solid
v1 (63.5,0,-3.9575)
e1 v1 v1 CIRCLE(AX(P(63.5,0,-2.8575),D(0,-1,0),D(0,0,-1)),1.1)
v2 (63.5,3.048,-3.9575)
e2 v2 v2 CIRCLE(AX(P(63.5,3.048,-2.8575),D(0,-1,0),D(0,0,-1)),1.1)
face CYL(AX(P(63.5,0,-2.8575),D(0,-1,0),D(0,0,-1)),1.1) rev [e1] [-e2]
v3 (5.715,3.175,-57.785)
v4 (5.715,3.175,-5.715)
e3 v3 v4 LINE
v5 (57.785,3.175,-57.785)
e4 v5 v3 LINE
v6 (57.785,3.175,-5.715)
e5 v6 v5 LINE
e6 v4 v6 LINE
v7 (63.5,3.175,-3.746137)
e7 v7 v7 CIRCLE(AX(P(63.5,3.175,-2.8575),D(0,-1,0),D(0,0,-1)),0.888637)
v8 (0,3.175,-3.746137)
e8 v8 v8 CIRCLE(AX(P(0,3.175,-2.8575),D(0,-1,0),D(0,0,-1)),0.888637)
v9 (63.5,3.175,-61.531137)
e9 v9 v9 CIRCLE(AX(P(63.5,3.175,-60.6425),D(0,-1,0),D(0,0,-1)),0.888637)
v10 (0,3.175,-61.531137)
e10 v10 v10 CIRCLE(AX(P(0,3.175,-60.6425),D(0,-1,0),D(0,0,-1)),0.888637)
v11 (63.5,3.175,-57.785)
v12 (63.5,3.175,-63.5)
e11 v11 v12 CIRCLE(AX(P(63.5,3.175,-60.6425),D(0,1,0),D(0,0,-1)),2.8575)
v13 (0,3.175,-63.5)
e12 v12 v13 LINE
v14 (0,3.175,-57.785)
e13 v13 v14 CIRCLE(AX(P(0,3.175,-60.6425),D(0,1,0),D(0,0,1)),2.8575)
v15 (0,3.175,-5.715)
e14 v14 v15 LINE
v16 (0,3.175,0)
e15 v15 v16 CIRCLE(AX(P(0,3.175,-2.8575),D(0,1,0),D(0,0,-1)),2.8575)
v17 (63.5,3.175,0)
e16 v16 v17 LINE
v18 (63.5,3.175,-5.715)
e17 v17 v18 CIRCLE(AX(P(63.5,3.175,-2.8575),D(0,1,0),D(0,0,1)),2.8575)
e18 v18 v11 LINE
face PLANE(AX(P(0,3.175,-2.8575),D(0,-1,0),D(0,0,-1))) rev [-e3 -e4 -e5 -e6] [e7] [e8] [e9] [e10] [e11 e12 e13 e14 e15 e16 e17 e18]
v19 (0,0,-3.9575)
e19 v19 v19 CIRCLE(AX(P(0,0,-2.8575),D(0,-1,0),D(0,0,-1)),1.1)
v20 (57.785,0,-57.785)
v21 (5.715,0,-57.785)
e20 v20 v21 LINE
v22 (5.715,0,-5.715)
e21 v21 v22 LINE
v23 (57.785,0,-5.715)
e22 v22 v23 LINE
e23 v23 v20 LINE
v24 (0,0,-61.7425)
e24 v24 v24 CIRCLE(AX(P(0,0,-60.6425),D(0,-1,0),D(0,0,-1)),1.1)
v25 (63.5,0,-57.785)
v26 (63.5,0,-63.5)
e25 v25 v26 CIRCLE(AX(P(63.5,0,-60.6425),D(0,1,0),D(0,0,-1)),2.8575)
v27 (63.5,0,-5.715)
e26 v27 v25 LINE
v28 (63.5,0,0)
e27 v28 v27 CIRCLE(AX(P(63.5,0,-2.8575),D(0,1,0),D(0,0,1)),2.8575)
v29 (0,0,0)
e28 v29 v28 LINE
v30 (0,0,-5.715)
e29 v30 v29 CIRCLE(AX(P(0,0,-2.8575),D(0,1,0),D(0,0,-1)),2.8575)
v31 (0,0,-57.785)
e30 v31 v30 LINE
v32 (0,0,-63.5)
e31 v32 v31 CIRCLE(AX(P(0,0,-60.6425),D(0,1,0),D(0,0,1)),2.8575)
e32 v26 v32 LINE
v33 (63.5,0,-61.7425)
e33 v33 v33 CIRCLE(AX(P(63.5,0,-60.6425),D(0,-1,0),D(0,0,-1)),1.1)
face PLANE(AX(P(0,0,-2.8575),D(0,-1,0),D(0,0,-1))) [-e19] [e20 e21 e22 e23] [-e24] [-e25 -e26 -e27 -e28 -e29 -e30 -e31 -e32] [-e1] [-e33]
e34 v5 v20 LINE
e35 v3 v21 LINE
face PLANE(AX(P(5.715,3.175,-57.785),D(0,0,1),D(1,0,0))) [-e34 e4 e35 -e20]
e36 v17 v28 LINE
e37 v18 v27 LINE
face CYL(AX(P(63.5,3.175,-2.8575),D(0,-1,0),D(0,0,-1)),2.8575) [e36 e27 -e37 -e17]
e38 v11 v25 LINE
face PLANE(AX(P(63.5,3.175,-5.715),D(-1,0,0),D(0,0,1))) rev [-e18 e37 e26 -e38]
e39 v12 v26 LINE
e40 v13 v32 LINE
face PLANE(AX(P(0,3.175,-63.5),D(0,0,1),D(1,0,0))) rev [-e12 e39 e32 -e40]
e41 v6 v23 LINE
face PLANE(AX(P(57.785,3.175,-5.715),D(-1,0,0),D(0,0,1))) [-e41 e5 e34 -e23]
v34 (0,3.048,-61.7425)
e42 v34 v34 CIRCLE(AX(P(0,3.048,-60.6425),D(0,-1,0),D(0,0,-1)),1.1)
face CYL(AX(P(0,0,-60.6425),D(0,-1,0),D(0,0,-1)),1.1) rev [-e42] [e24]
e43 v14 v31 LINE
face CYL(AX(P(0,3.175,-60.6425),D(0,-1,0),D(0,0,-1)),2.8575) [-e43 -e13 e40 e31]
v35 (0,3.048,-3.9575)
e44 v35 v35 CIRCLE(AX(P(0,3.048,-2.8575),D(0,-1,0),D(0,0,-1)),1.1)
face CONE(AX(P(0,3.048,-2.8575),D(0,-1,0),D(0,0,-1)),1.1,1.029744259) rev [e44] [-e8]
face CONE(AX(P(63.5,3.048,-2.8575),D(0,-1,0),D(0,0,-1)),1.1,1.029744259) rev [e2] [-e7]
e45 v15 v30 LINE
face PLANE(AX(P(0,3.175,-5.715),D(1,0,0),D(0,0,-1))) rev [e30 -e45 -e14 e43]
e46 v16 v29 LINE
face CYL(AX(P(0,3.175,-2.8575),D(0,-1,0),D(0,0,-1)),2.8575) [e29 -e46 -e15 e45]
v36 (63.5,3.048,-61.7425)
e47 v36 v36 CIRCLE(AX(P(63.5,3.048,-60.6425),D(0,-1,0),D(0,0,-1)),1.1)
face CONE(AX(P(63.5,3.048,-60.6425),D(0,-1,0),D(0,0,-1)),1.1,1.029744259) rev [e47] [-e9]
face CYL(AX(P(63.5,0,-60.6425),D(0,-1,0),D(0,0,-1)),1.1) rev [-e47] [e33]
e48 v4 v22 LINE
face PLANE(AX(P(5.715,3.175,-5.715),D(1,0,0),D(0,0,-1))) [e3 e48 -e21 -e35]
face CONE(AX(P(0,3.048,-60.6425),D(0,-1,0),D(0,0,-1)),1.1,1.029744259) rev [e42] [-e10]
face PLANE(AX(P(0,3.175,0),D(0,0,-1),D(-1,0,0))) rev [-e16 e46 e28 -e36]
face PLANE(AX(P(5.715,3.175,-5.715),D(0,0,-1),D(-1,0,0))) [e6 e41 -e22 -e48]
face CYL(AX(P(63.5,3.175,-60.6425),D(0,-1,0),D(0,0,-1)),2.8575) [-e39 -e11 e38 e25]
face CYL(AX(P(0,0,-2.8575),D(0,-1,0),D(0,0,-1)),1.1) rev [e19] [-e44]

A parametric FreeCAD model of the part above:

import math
import FreeCAD as App
import Part
import Sketcher
from FreeCAD import Vector
Q = App.Units.Quantity

doc = App.newDocument("Part")
body = doc.addObject("PartDesign::Body", "Body")

# Sketch on XZ plane
sketch1 = body.newObject("Sketcher::SketchObject", "Sketch")
sketch1.AttachmentSupport = (doc.getObject("XZ_Plane"), [""])
sketch1.MapMode = "FlatFace"
sketch1.addGeometry([
    Part.LineSegment(Vector(0, 0, 0), Vector(63.5, 0, 0)),  # 0
    Part.ArcOfCircle(Part.Circle(Vector(63.5, -2.9, 0), Vector(0, 0, 1), 2.9), math.radians(-90), math.radians(90)),  # 1
    Part.LineSegment(Vector(63.5, -5.7, 0), Vector(63.5, -57.8, 0)),  # 2
    Part.ArcOfCircle(Part.Circle(Vector(63.5, -60.6, 0), Vector(0, 0, 1), 2.9), math.radians(-90), math.radians(90)),  # 3
    Part.LineSegment(Vector(63.5, -63.5, 0), Vector(0, -63.5, 0)),  # 4
    Part.ArcOfCircle(Part.Circle(Vector(0, -60.6, 0), Vector(0, 0, 1), 2.9), math.radians(90), math.radians(270)),  # 5
    Part.LineSegment(Vector(0, -57.8, 0), Vector(0, -5.7, 0)),  # 6
    Part.ArcOfCircle(Part.Circle(Vector(0, -2.9, 0), Vector(0, 0, 1), 2.9), math.radians(90), math.radians(270)),  # 7
    Part.LineSegment(Vector(57.8, -5.7, 0), Vector(5.7, -5.7, 0)),  # 8
    Part.LineSegment(Vector(5.7, -5.7, 0), Vector(5.7, -57.8, 0)),  # 9
    Part.LineSegment(Vector(5.7, -57.8, 0), Vector(57.8, -57.8, 0)),  # 10
    Part.LineSegment(Vector(57.8, -57.8, 0), Vector(57.8, -5.7, 0)),  # 11
], False)
sketch1.addConstraint([
    Sketcher.Constraint("Tangent", 0, 2, 1, 2),
    Sketcher.Constraint("Coincident", 1, 1, 2, 1),
    Sketcher.Constraint("Coincident", 2, 2, 3, 2),
    Sketcher.Constraint("Tangent", 3, 1, 4, 1),
    Sketcher.Constraint("Tangent", 4, 2, 5, 2),
    Sketcher.Constraint("Coincident", 5, 1, 6, 1),
    Sketcher.Constraint("Coincident", 6, 2, 7, 2),
    Sketcher.Constraint("Tangent", 7, 1, 0, 1),
    Sketcher.Constraint("Coincident", 8, 2, 9, 1),
    Sketcher.Constraint("Coincident", 9, 2, 10, 1),
    Sketcher.Constraint("Coincident", 10, 2, 11, 1),
    Sketcher.Constraint("Coincident", 11, 2, 8, 1),
    Sketcher.Constraint("Horizontal", 0),
    Sketcher.Constraint("Vertical", 2),
    Sketcher.Constraint("Horizontal", 4),
    Sketcher.Constraint("Vertical", 6),
    Sketcher.Constraint("Horizontal", 8),
    Sketcher.Constraint("Vertical", 9),
    Sketcher.Constraint("Horizontal", 10),
    Sketcher.Constraint("Vertical", 11),
    Sketcher.Constraint("Coincident", 7, 1, -1, 1),
    Sketcher.Constraint("Equal", 1, 3),
    Sketcher.Constraint("Equal", 3, 5),
    Sketcher.Constraint("Equal", 5, 7),
    Sketcher.Constraint("PointOnObject", 5, 3, -2),
    Sketcher.Constraint("PointOnObject", 5, 1, -2),
    Sketcher.Constraint("Horizontal", 6, 2, 8, 2),
    Sketcher.Constraint("Horizontal", 5, 1, 9, 2),
    Sketcher.Constraint("Vertical", 1, 3, 3, 3),
    Sketcher.Constraint("Vertical", 0, 2, 1, 1),
    Sketcher.Constraint("Equal", 10, 2),
    Sketcher.Constraint("DistanceX", 0, 1, 0, 2, Q("2.5 in")),
    Sketcher.Constraint("DistanceX", 8, 2, 8, 1, Q("2.05 in")),
    Sketcher.Constraint("DistanceY", 3, 1, -1, 1, Q("2.5 in")),
    Sketcher.Constraint("DistanceX", -1, 1, 8, 2, Q("0.225 in")),
])
pad1 = body.newObject("PartDesign::Pad", "Pad")
pad1.Profile = sketch1
pad1.Length = Q("0.125 in")
pad1.Reversed = True

# Sketch on XZ plane
sketch2 = body.newObject("Sketcher::SketchObject", "Sketch001")
sketch2.AttachmentSupport = (doc.getObject("XZ_Plane"), [""])
sketch2.MapMode = "FlatFace"
sketch2.addGeometry([
    Part.Circle(Vector(63.5, -60.6, 0), Vector(0, 0, 1), 1.1),
    Part.Circle(Vector(0, -60.6, 0), Vector(0, 0, 1), 1.1),
    Part.Circle(Vector(0, -2.9, 0), Vector(0, 0, 1), 1.1),
    Part.Circle(Vector(63.5, -2.9, 0), Vector(0, 0, 1), 1.1),
], False)
sketch2.addConstraint([
    Sketcher.Constraint("Equal", 0, 1),
    Sketcher.Constraint("Equal", 1, 2),
    Sketcher.Constraint("Equal", 2, 3),
    Sketcher.Constraint("PointOnObject", 1, 3, -2),
    Sketcher.Constraint("PointOnObject", 2, 3, -2),
    Sketcher.Constraint("Horizontal", 0, 3, 1, 3),
    Sketcher.Constraint("Horizontal", 2, 3, 3, 3),
    Sketcher.Constraint("Vertical", 0, 3, 3, 3),
    Sketcher.Constraint("DistanceX", -1, 1, 0, 3, Q("2.5 in")),
    Sketcher.Constraint("Diameter", 0, Q("2.2 mm")),
    Sketcher.Constraint("DistanceY", 1, 3, 2, 3, Q("2.275 in")),
    Sketcher.Constraint("DistanceY", 0, 3, -1, 1, Q("2.3875 in")),
])
doc.recompute()
hole = body.newObject("PartDesign::Hole", "Hole")
hole.Profile = sketch2
hole.ThreadType = "None"
hole.Diameter = 2.2
hole.DepthType = "Dimension"
hole.Depth = Q("0.12 in")
hole.DrillPoint = "Angled"
hole.DrillPointAngle = 118

doc.recompute()
